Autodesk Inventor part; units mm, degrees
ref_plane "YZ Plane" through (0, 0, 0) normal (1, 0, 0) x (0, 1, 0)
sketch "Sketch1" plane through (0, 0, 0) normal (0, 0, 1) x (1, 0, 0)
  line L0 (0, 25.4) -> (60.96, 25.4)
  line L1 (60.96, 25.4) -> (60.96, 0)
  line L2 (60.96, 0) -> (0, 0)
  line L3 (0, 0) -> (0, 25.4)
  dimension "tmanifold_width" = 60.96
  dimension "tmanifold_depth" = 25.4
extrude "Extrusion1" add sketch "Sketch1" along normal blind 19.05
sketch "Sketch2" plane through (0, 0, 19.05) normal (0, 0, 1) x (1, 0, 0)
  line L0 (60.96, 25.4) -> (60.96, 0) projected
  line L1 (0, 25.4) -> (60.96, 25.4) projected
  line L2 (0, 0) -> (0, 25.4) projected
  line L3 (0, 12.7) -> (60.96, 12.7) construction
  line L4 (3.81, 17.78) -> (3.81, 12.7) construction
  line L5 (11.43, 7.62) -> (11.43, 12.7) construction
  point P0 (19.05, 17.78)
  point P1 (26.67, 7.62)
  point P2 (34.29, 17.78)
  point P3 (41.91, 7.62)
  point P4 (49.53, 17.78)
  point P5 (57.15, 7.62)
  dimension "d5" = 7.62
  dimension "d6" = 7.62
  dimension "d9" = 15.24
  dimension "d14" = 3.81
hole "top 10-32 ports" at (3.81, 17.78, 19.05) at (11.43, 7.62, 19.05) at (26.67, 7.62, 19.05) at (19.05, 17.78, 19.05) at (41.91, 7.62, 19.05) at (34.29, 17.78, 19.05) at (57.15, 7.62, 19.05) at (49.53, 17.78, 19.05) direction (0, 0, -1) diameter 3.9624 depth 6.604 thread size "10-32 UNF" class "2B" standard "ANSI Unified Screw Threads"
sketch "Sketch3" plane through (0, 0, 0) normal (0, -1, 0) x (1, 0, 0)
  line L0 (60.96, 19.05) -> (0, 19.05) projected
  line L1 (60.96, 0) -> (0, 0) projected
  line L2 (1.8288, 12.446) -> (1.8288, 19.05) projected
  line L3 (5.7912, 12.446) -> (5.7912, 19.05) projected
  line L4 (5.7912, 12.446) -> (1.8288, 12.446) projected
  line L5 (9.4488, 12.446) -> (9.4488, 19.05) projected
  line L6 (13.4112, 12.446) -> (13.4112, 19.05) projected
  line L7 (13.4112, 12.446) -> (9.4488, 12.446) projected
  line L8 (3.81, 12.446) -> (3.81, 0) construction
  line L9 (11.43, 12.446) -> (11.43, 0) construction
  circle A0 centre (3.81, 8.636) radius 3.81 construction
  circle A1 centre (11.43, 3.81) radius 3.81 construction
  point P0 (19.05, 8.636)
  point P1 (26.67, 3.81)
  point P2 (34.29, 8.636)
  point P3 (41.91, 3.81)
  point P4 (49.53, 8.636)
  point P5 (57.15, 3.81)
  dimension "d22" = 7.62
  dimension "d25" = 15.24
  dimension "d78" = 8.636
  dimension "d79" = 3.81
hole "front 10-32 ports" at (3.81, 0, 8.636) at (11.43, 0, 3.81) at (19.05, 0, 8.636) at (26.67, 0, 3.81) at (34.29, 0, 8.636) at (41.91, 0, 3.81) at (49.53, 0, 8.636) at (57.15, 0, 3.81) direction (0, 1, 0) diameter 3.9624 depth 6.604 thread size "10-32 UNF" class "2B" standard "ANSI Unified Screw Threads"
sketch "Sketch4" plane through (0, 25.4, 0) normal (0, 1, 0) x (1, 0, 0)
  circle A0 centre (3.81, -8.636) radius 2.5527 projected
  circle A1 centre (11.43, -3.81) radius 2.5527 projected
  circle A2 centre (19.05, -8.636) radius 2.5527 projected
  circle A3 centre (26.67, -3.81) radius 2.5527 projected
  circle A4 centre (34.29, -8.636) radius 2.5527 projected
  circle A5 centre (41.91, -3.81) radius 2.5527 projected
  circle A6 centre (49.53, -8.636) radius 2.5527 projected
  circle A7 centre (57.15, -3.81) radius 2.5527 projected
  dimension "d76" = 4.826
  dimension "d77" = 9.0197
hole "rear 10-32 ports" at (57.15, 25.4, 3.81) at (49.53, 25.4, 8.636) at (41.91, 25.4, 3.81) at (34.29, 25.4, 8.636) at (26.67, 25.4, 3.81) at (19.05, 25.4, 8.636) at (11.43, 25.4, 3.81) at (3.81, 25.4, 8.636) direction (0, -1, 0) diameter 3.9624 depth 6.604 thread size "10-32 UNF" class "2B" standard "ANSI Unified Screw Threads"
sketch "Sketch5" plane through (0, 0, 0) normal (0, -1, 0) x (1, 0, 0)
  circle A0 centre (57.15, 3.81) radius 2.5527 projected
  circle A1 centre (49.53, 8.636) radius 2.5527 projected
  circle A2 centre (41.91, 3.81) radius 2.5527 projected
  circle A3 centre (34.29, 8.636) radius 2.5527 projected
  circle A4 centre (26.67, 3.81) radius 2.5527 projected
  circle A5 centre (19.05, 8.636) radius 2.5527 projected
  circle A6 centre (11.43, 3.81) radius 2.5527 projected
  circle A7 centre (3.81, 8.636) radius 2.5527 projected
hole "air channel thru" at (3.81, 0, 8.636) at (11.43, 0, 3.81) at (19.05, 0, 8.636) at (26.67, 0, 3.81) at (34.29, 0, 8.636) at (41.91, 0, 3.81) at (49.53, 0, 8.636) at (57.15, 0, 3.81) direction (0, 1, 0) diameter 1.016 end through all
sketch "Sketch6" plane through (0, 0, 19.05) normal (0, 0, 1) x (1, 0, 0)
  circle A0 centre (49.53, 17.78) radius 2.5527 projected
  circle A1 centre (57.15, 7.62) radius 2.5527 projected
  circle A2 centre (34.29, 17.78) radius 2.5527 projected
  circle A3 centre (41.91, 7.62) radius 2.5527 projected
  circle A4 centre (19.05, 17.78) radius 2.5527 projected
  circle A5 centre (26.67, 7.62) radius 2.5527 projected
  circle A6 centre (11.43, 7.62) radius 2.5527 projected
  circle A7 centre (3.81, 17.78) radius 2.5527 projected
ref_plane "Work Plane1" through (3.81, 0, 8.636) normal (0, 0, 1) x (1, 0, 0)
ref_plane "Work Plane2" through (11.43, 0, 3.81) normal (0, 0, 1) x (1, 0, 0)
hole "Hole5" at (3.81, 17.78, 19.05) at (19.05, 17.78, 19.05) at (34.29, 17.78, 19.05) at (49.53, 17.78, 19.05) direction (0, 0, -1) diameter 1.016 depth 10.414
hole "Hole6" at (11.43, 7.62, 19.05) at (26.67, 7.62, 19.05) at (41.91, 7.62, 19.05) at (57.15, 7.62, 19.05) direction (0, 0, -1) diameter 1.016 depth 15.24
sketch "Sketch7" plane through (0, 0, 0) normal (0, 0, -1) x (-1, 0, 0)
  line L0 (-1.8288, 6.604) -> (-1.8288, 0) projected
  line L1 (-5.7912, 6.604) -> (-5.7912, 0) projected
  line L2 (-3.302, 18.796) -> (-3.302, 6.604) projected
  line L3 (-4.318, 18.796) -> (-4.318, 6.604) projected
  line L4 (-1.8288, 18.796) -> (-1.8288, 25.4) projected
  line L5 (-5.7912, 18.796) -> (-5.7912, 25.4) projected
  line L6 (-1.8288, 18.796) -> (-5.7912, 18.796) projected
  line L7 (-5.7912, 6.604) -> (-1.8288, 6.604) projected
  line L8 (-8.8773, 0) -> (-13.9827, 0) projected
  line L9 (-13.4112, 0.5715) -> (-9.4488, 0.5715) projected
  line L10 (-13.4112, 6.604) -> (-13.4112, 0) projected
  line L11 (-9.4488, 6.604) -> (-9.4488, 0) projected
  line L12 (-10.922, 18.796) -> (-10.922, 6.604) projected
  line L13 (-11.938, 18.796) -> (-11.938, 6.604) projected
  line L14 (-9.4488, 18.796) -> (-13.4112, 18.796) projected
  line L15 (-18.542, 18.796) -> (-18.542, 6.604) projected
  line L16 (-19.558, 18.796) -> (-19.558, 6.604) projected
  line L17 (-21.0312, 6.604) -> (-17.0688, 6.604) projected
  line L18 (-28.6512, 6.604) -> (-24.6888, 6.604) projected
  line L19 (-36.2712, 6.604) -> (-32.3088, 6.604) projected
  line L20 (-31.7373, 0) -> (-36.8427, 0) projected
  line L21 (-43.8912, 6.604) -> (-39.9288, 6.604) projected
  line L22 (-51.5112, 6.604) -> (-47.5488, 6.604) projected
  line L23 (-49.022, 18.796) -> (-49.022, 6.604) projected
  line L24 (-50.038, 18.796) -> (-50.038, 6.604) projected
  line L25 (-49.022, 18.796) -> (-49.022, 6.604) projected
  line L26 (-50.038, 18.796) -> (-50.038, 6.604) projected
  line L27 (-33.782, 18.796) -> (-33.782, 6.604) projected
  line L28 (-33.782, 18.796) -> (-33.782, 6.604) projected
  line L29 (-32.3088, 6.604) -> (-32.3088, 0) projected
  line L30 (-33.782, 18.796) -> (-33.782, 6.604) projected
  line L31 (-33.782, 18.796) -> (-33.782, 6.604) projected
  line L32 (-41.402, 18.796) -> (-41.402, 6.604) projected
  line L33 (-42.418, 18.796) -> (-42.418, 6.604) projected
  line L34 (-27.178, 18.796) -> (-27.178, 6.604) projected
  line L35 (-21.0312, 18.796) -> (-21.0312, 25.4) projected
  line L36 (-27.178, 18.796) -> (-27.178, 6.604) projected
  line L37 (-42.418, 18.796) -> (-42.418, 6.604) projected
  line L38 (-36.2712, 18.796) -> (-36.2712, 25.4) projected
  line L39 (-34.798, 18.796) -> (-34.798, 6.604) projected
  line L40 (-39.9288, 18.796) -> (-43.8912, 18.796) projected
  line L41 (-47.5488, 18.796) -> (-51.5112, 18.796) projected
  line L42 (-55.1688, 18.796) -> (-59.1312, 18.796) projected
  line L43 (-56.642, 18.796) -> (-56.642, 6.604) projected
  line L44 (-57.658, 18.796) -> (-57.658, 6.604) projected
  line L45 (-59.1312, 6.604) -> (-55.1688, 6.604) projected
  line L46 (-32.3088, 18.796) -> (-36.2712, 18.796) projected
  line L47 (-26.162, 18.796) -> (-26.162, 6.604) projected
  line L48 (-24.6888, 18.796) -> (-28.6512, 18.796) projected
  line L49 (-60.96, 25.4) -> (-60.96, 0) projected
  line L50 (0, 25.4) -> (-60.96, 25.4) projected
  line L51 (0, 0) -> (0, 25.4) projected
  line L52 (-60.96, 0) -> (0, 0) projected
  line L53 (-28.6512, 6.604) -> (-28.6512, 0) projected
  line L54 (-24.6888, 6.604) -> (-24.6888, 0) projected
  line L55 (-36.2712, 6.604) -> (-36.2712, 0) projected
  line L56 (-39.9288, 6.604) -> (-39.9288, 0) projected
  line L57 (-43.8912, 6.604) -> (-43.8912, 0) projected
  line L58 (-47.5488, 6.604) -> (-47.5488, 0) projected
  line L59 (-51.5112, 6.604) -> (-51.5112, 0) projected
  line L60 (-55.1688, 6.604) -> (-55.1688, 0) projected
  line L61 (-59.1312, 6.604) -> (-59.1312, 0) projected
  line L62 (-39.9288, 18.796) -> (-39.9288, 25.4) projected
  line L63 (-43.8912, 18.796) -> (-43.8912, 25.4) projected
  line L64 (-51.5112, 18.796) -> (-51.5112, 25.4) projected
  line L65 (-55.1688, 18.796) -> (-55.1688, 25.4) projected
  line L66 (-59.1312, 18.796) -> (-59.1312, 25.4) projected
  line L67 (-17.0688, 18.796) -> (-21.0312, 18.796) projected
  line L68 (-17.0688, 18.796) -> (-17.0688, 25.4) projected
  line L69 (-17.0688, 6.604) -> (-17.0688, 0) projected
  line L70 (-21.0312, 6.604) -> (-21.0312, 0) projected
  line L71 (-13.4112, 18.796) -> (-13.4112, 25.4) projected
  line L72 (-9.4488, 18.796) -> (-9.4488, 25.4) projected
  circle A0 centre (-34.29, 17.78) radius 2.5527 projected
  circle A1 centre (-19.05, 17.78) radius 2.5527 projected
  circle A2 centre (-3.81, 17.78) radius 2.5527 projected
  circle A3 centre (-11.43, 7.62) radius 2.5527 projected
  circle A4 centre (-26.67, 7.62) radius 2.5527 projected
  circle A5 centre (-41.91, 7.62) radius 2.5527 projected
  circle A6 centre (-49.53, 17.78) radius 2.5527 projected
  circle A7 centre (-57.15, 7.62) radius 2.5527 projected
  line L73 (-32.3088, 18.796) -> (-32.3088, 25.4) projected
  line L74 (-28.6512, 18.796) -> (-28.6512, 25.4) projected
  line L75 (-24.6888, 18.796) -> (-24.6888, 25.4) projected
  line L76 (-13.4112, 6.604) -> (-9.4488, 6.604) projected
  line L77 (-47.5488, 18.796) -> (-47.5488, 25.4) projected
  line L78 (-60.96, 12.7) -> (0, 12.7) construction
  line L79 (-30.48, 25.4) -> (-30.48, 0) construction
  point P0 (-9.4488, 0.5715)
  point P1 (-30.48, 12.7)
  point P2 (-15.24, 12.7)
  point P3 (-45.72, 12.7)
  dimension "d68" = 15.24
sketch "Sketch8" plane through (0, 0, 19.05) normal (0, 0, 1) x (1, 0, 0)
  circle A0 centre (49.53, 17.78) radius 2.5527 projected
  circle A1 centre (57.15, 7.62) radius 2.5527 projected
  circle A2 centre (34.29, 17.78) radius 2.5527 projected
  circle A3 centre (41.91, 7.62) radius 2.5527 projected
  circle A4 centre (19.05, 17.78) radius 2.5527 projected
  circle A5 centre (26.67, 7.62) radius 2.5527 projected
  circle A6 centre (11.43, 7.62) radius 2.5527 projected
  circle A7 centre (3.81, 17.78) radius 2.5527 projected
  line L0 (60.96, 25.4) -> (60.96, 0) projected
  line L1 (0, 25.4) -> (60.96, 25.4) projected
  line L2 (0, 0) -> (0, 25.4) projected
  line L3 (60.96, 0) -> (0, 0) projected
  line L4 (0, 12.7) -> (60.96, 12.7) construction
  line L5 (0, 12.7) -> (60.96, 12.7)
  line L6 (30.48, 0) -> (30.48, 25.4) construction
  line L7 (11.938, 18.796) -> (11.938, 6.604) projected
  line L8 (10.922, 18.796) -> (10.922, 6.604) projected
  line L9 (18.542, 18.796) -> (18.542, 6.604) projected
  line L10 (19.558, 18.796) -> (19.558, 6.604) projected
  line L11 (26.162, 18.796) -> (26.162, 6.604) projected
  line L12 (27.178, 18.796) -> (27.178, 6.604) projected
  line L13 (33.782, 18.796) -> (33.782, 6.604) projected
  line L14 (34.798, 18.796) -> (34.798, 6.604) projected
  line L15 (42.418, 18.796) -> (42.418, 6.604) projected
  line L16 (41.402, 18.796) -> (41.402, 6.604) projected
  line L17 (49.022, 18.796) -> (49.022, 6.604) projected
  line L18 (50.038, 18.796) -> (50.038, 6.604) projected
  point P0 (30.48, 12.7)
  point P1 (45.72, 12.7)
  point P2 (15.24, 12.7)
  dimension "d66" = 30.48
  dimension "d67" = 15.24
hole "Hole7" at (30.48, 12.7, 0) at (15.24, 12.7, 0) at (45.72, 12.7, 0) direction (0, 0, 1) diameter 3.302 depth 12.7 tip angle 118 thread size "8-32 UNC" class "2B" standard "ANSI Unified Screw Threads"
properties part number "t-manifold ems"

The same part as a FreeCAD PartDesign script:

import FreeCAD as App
import Part
import Sketcher
from FreeCAD import Vector
Q = App.Units.Quantity

doc = App.newDocument("Part")
body = doc.addObject("PartDesign::Body", "Body")

# Sketch on XY plane
sketch1 = body.newObject("Sketcher::SketchObject", "Sketch")
sketch1.AttachmentSupport = (doc.getObject("XY_Plane"), [""])
sketch1.MapMode = "FlatFace"
sketch1.addGeometry([
    Part.LineSegment(Vector(61, 25, 0), Vector(0, 25, 0)),
    Part.LineSegment(Vector(0, 25, 0), Vector(0, 0, 0)),
    Part.LineSegment(Vector(0, 0, 0), Vector(61, 0, 0)),
    Part.LineSegment(Vector(61, 0, 0), Vector(61, 25, 0)),
], False)
sketch1.addConstraint([
    Sketcher.Constraint("Coincident", 0, 2, 1, 1),
    Sketcher.Constraint("Coincident", 1, 2, 2, 1),
    Sketcher.Constraint("Coincident", 2, 2, 3, 1),
    Sketcher.Constraint("Coincident", 3, 2, 0, 1),
    Sketcher.Constraint("Horizontal", 0),
    Sketcher.Constraint("Vertical", 1),
    Sketcher.Constraint("Horizontal", 2),
    Sketcher.Constraint("Vertical", 3),
    Sketcher.Constraint("Coincident", 1, 2, -1, 1),
    Sketcher.Constraint("DistanceY", 1, 2, 1, 1, Q("1 in")),
    Sketcher.Constraint("DistanceX", 0, 2, 0, 1, Q("2.4 in")),
])
pad1 = body.newObject("PartDesign::Pad", "Pad")
pad1.Profile = sketch1
pad1.Length = Q("0.75 in")

# Sketch on XY plane
sketch2 = body.newObject("Sketcher::SketchObject", "Sketch001")
sketch2.AttachmentSupport = (doc.getObject("XY_Plane"), [""])
sketch2.MapMode = "FlatFace"
sketch2.AttachmentOffset = App.Placement(Vector(0, 0, 0.75 * 25.4), App.Rotation())
sketch2.addGeometry([
    Part.Circle(Vector(3.8, 17.8, 0), Vector(0, 0, 1), 2),  # 0
    Part.Circle(Vector(11.4, 7.6, 0), Vector(0, 0, 1), 2),  # 1
    Part.Circle(Vector(26.7, 7.6, 0), Vector(0, 0, 1), 2),  # 2
    Part.Circle(Vector(19.1, 17.8, 0), Vector(0, 0, 1), 2),  # 3
    Part.Circle(Vector(41.9, 7.6, 0), Vector(0, 0, 1), 2),  # 4
    Part.Circle(Vector(34.3, 17.8, 0), Vector(0, 0, 1), 2),  # 5
    Part.Circle(Vector(57.1, 7.6, 0), Vector(0, 0, 1), 2),  # 6
    Part.Circle(Vector(49.5, 17.8, 0), Vector(0, 0, 1), 2),  # 7
], False)
sketch2.addConstraint([
    Sketcher.Constraint("Equal", 0, 1),
    Sketcher.Constraint("Equal", 1, 2),
    Sketcher.Constraint("Equal", 2, 3),
    Sketcher.Constraint("Equal", 3, 4),
    Sketcher.Constraint("Equal", 4, 5),
    Sketcher.Constraint("Equal", 5, 6),
    Sketcher.Constraint("Equal", 6, 7),
    Sketcher.Constraint("Horizontal", 1, 3, 2, 3),
    Sketcher.Constraint("Horizontal", 0, 3, 3, 3),
    Sketcher.Constraint("Horizontal", 2, 3, 4, 3),
    Sketcher.Constraint("Horizontal", 3, 3, 5, 3),
    Sketcher.Constraint("Horizontal", 4, 3, 6, 3),
    Sketcher.Constraint("Horizontal", 5, 3, 7, 3),
    Sketcher.Constraint("Diameter", 0, Q("0.156 in")),
    Sketcher.Constraint("DistanceY", -1, 1, 0, 3, Q("0.7 in")),
    Sketcher.Constraint("DistanceY", -1, 1, 1, 3, Q("0.3 in")),
    Sketcher.Constraint("DistanceX", 0, 3, 1, 3, Q("0.3 in")),
    Sketcher.Constraint("DistanceX", 1, 3, 2, 3, Q("0.6 in")),
    Sketcher.Constraint("DistanceX", 1, 3, 3, 3, Q("0.3 in")),
    Sketcher.Constraint("DistanceX", 2, 3, 4, 3, Q("0.6 in")),
    Sketcher.Constraint("DistanceX", 2, 3, 5, 3, Q("0.3 in")),
    Sketcher.Constraint("DistanceX", 4, 3, 6, 3, Q("0.6 in")),
    Sketcher.Constraint("DistanceX", 7, 3, 6, 3, Q("0.3 in")),
    Sketcher.Constraint("DistanceX", -1, 1, 0, 3, Q("0.15 in")),
])
doc.recompute()
hole = body.newObject("PartDesign::Hole", "Hole")
hole.Profile = sketch2
hole.ThreadType = "None"
hole.Diameter = Q("0.156 in")
hole.DepthType = "Dimension"
hole.Depth = Q("0.26 in")
hole.DrillPoint = "Flat"

# Sketch on XZ plane
sketch3 = body.newObject("Sketcher::SketchObject", "Sketch002")
sketch3.AttachmentSupport = (doc.getObject("XZ_Plane"), [""])
sketch3.MapMode = "FlatFace"
sketch3.addGeometry([
    Part.Circle(Vector(3.8, 8.6, 0), Vector(0, 0, 1), 2),  # 0
    Part.Circle(Vector(11.4, 3.8, 0), Vector(0, 0, 1), 2),  # 1
    Part.Circle(Vector(19.1, 8.6, 0), Vector(0, 0, 1), 2),  # 2
    Part.Circle(Vector(26.7, 3.8, 0), Vector(0, 0, 1), 2),  # 3
    Part.Circle(Vector(34.3, 8.6, 0), Vector(0, 0, 1), 2),  # 4
    Part.Circle(Vector(41.9, 3.8, 0), Vector(0, 0, 1), 2),  # 5
    Part.Circle(Vector(49.5, 8.6, 0), Vector(0, 0, 1), 2),  # 6
    Part.Circle(Vector(57.1, 3.8, 0), Vector(0, 0, 1), 2),  # 7
], False)
sketch3.addConstraint([
    Sketcher.Constraint("Equal", 0, 1),
    Sketcher.Constraint("Equal", 1, 2),
    Sketcher.Constraint("Equal", 2, 3),
    Sketcher.Constraint("Equal", 3, 4),
    Sketcher.Constraint("Equal", 4, 5),
    Sketcher.Constraint("Equal", 5, 6),
    Sketcher.Constraint("Equal", 6, 7),
    Sketcher.Constraint("Horizontal", 0, 3, 2, 3),
    Sketcher.Constraint("Horizontal", 1, 3, 3, 3),
    Sketcher.Constraint("Horizontal", 2, 3, 4, 3),
    Sketcher.Constraint("Horizontal", 3, 3, 5, 3),
    Sketcher.Constraint("Horizontal", 4, 3, 6, 3),
    Sketcher.Constraint("Horizontal", 5, 3, 7, 3),
    Sketcher.Constraint("Diameter", 0, Q("0.156 in")),
    Sketcher.Constraint("DistanceX", 0, 3, 1, 3, Q("0.3 in")),
    Sketcher.Constraint("DistanceX", 1, 3, 2, 3, Q("0.3 in")),
    Sketcher.Constraint("DistanceX", 2, 3, 3, 3, Q("0.3 in")),
    Sketcher.Constraint("DistanceX", 3, 3, 4, 3, Q("0.3 in")),
    Sketcher.Constraint("DistanceX", 4, 3, 5, 3, Q("0.3 in")),
    Sketcher.Constraint("DistanceX", 5, 3, 6, 3, Q("0.3 in")),
    Sketcher.Constraint("DistanceX", 6, 3, 7, 3, Q("0.3 in")),
    Sketcher.Constraint("DistanceX", -1, 1, 0, 3, Q("0.15 in")),
    Sketcher.Constraint("DistanceY", -1, 1, 0, 3, Q("0.34 in")),
    Sketcher.Constraint("DistanceY", -1, 1, 1, 3, Q("0.15 in")),
])
doc.recompute()
hole2 = body.newObject("PartDesign::Hole", "Hole001")
hole2.Profile = sketch3
hole2.ThreadType = "None"
hole2.Diameter = Q("0.156 in")
hole2.DepthType = "Dimension"
hole2.Depth = Q("0.26 in")
hole2.DrillPoint = "Flat"

# Sketch on XZ plane
sketch4 = body.newObject("Sketcher::SketchObject", "Sketch003")
sketch4.AttachmentSupport = (doc.getObject("XZ_Plane"), [""])
sketch4.MapMode = "FlatFace"
sketch4.AttachmentOffset = App.Placement(Vector(0, 0, -1 * 25.4), App.Rotation())
sketch4.addGeometry([
    Part.Circle(Vector(57.1, 3.8, 0), Vector(0, 0, 1), 2),  # 0
    Part.Circle(Vector(49.5, 8.6, 0), Vector(0, 0, 1), 2),  # 1
    Part.Circle(Vector(41.9, 3.8, 0), Vector(0, 0, 1), 2),  # 2
    Part.Circle(Vector(34.3, 8.6, 0), Vector(0, 0, 1), 2),  # 3
    Part.Circle(Vector(26.7, 3.8, 0), Vector(0, 0, 1), 2),  # 4
    Part.Circle(Vector(19.1, 8.6, 0), Vector(0, 0, 1), 2),  # 5
    Part.Circle(Vector(11.4, 3.8, 0), Vector(0, 0, 1), 2),  # 6
    Part.Circle(Vector(3.8, 8.6, 0), Vector(0, 0, 1), 2),  # 7
], False)
sketch4.addConstraint([
    Sketcher.Constraint("Equal", 0, 1),
    Sketcher.Constraint("Equal", 1, 2),
    Sketcher.Constraint("Equal", 2, 3),
    Sketcher.Constraint("Equal", 3, 4),
    Sketcher.Constraint("Equal", 4, 5),
    Sketcher.Constraint("Equal", 5, 6),
    Sketcher.Constraint("Equal", 6, 7),
    Sketcher.Constraint("Horizontal", 0, 3, 2, 3),
    Sketcher.Constraint("Horizontal", 1, 3, 3, 3),
    Sketcher.Constraint("Horizontal", 2, 3, 4, 3),
    Sketcher.Constraint("Horizontal", 3, 3, 5, 3),
    Sketcher.Constraint("Horizontal", 4, 3, 6, 3),
    Sketcher.Constraint("Horizontal", 5, 3, 7, 3),
    Sketcher.Constraint("Diameter", 0, Q("0.156 in")),
    Sketcher.Constraint("DistanceX", 1, 3, 0, 3, Q("0.3 in")),
    Sketcher.Constraint("DistanceX", 2, 3, 1, 3, Q("0.3 in")),
    Sketcher.Constraint("DistanceX", 3, 3, 2, 3, Q("0.3 in")),
    Sketcher.Constraint("DistanceX", 4, 3, 3, 3, Q("0.3 in")),
    Sketcher.Constraint("DistanceX", 5, 3, 4, 3, Q("0.3 in")),
    Sketcher.Constraint("DistanceX", 6, 3, 5, 3, Q("0.3 in")),
    Sketcher.Constraint("DistanceX", 7, 3, 6, 3, Q("0.3 in")),
    Sketcher.Constraint("DistanceX", -1, 1, 0, 3, Q("2.25 in")),
    Sketcher.Constraint("DistanceY", -1, 1, 0, 3, Q("0.15 in")),
    Sketcher.Constraint("DistanceY", -1, 1, 1, 3, Q("0.34 in")),
])
doc.recompute()
hole3 = body.newObject("PartDesign::Hole", "Hole002")
hole3.Profile = sketch4
hole3.ThreadType = "None"
hole3.Diameter = Q("0.156 in")
hole3.DepthType = "Dimension"
hole3.Depth = Q("0.26 in")
hole3.DrillPoint = "Flat"
hole3.Reversed = True

# Sketch on XZ plane
sketch5 = body.newObject("Sketcher::SketchObject", "Sketch004")
sketch5.AttachmentSupport = (doc.getObject("XZ_Plane"), [""])
sketch5.MapMode = "FlatFace"
sketch5.addGeometry([
    Part.Circle(Vector(3.8, 8.6, 0), Vector(0, 0, 1), 0.5),  # 0
    Part.Circle(Vector(11.4, 3.8, 0), Vector(0, 0, 1), 0.5),  # 1
    Part.Circle(Vector(19.1, 8.6, 0), Vector(0, 0, 1), 0.5),  # 2
    Part.Circle(Vector(26.7, 3.8, 0), Vector(0, 0, 1), 0.5),  # 3
    Part.Circle(Vector(34.3, 8.6, 0), Vector(0, 0, 1), 0.5),  # 4
    Part.Circle(Vector(41.9, 3.8, 0), Vector(0, 0, 1), 0.5),  # 5
    Part.Circle(Vector(49.5, 8.6, 0), Vector(0, 0, 1), 0.5),  # 6
    Part.Circle(Vector(57.1, 3.8, 0), Vector(0, 0, 1), 0.5),  # 7
], False)
sketch5.addConstraint([
    Sketcher.Constraint("Equal", 0, 1),
    Sketcher.Constraint("Equal", 1, 2),
    Sketcher.Constraint("Equal", 2, 3),
    Sketcher.Constraint("Equal", 3, 4),
    Sketcher.Constraint("Equal", 4, 5),
    Sketcher.Constraint("Equal", 5, 6),
    Sketcher.Constraint("Equal", 6, 7),
    Sketcher.Constraint("Horizontal", 0, 3, 2, 3),
    Sketcher.Constraint("Horizontal", 1, 3, 3, 3),
    Sketcher.Constraint("Horizontal", 2, 3, 4, 3),
    Sketcher.Constraint("Horizontal", 3, 3, 5, 3),
    Sketcher.Constraint("Horizontal", 4, 3, 6, 3),
    Sketcher.Constraint("Horizontal", 5, 3, 7, 3),
    Sketcher.Constraint("Diameter", 0, Q("0.04 in")),
    Sketcher.Constraint("DistanceX", 0, 3, 1, 3, Q("0.3 in")),
    Sketcher.Constraint("DistanceX", 1, 3, 2, 3, Q("0.3 in")),
    Sketcher.Constraint("DistanceX", 2, 3, 3, 3, Q("0.3 in")),
    Sketcher.Constraint("DistanceX", 3, 3, 4, 3, Q("0.3 in")),
    Sketcher.Constraint("DistanceX", 4, 3, 5, 3, Q("0.3 in")),
    Sketcher.Constraint("DistanceX", 5, 3, 6, 3, Q("0.3 in")),
    Sketcher.Constraint("DistanceX", 6, 3, 7, 3, Q("0.3 in")),
    Sketcher.Constraint("DistanceX", -1, 1, 0, 3, Q("0.15 in")),
    Sketcher.Constraint("DistanceY", -1, 1, 0, 3, Q("0.34 in")),
    Sketcher.Constraint("DistanceY", -1, 1, 1, 3, Q("0.15 in")),
])
doc.recompute()
hole4 = body.newObject("PartDesign::Hole", "Hole003")
hole4.Profile = sketch5
hole4.ThreadType = "None"
hole4.Diameter = Q("0.04 in")
hole4.DepthType = "ThroughAll"

# Sketch on XY plane
sketch6 = body.newObject("Sketcher::SketchObject", "Sketch005")
sketch6.AttachmentSupport = (doc.getObject("XY_Plane"), [""])
sketch6.MapMode = "FlatFace"
sketch6.AttachmentOffset = App.Placement(Vector(0, 0, 0.75 * 25.4), App.Rotation())
sketch6.addGeometry([
    Part.Circle(Vector(3.8, 17.8, 0), Vector(0, 0, 1), 0.5),
    Part.Circle(Vector(19.1, 17.8, 0), Vector(0, 0, 1), 0.5),
    Part.Circle(Vector(34.3, 17.8, 0), Vector(0, 0, 1), 0.5),
    Part.Circle(Vector(49.5, 17.8, 0), Vector(0, 0, 1), 0.5),
], False)
sketch6.addConstraint([
    Sketcher.Constraint("Equal", 0, 1),
    Sketcher.Constraint("Equal", 1, 2),
    Sketcher.Constraint("Equal", 2, 3),
    Sketcher.Constraint("Horizontal", 0, 3, 1, 3),
    Sketcher.Constraint("Horizontal", 1, 3, 2, 3),
    Sketcher.Constraint("Horizontal", 2, 3, 3, 3),
    Sketcher.Constraint("Diameter", 0, Q("0.04 in")),
    Sketcher.Constraint("DistanceY", -1, 1, 0, 3, Q("0.7 in")),
    Sketcher.Constraint("DistanceX", 0, 3, 1, 3, Q("0.6 in")),
    Sketcher.Constraint("DistanceX", 1, 3, 2, 3, Q("0.6 in")),
    Sketcher.Constraint("DistanceX", 2, 3, 3, 3, Q("0.6 in")),
    Sketcher.Constraint("DistanceX", -1, 1, 0, 3, Q("0.15 in")),
])
doc.recompute()
hole5 = body.newObject("PartDesign::Hole", "Hole004")
hole5.Profile = sketch6
hole5.ThreadType = "None"
hole5.Diameter = Q("0.04 in")
hole5.DepthType = "Dimension"
hole5.Depth = Q("0.41 in")
hole5.DrillPoint = "Flat"

# Sketch on XY plane
sketch7 = body.newObject("Sketcher::SketchObject", "Sketch006")
sketch7.AttachmentSupport = (doc.getObject("XY_Plane"), [""])
sketch7.MapMode = "FlatFace"
sketch7.AttachmentOffset = App.Placement(Vector(0, 0, 0.75 * 25.4), App.Rotation())
sketch7.addGeometry([
    Part.Circle(Vector(11.4, 7.6, 0), Vector(0, 0, 1), 0.5),
    Part.Circle(Vector(26.7, 7.6, 0), Vector(0, 0, 1), 0.5),
    Part.Circle(Vector(41.9, 7.6, 0), Vector(0, 0, 1), 0.5),
    Part.Circle(Vector(57.1, 7.6, 0), Vector(0, 0, 1), 0.5),
], False)
sketch7.addConstraint([
    Sketcher.Constraint("Equal", 0, 1),
    Sketcher.Constraint("Equal", 1, 2),
    Sketcher.Constraint("Equal", 2, 3),
    Sketcher.Constraint("Horizontal", 0, 3, 1, 3),
    Sketcher.Constraint("Horizontal", 1, 3, 2, 3),
    Sketcher.Constraint("Horizontal", 2, 3, 3, 3),
    Sketcher.Constraint("Diameter", 0, Q("0.04 in")),
    Sketcher.Constraint("DistanceY", -1, 1, 0, 3, Q("0.3 in")),
    Sketcher.Constraint("DistanceX", 0, 3, 1, 3, Q("0.6 in")),
    Sketcher.Constraint("DistanceX", 1, 3, 2, 3, Q("0.6 in")),
    Sketcher.Constraint("DistanceX", 2, 3, 3, 3, Q("0.6 in")),
    Sketcher.Constraint("DistanceX", -1, 1, 0, 3, Q("0.45 in")),
])
doc.recompute()
hole6 = body.newObject("PartDesign::Hole", "Hole005")
hole6.Profile = sketch7
hole6.ThreadType = "None"
hole6.Diameter = Q("0.04 in")
hole6.DepthType = "Dimension"
hole6.Depth = Q("0.6 in")
hole6.DrillPoint = "Flat"

# Sketch on XY plane
sketch8 = body.newObject("Sketcher::SketchObject", "Sketch007")
sketch8.AttachmentSupport = (doc.getObject("XY_Plane"), [""])
sketch8.MapMode = "FlatFace"
sketch8.addGeometry([
    Part.Circle(Vector(30.5, 12.7, 0), Vector(0, 0, 1), 1.7),
    Part.Circle(Vector(15.2, 12.7, 0), Vector(0, 0, 1), 1.7),
    Part.Circle(Vector(45.7, 12.7, 0), Vector(0, 0, 1), 1.7),
], False)
sketch8.addConstraint([
    Sketcher.Constraint("Equal", 0, 1),
    Sketcher.Constraint("Equal", 1, 2),
    Sketcher.Constraint("Horizontal", 0, 3, 1, 3),
    Sketcher.Constraint("Horizontal", 1, 3, 2, 3),
    Sketcher.Constraint("Diameter", 0, Q("0.13 in")),
    Sketcher.Constraint("DistanceX", -1, 1, 0, 3, Q("1.2 in")),
    Sketcher.Constraint("DistanceY", -1, 1, 0, 3, Q("0.5 in")),
    Sketcher.Constraint("DistanceX", -1, 1, 1, 3, Q("0.6 in")),
    Sketcher.Constraint("DistanceX", -1, 1, 2, 3, Q("1.8 in")),
])
doc.recompute()
hole7 = body.newObject("PartDesign::Hole", "Hole006")
hole7.Profile = sketch8
hole7.ThreadType = "None"
hole7.Diameter = Q("0.13 in")
hole7.DepthType = "Dimension"
hole7.Depth = Q("0.5 in")
hole7.DrillPoint = "Angled"
hole7.DrillPointAngle = 118
hole7.Reversed = True

doc.recompute()
